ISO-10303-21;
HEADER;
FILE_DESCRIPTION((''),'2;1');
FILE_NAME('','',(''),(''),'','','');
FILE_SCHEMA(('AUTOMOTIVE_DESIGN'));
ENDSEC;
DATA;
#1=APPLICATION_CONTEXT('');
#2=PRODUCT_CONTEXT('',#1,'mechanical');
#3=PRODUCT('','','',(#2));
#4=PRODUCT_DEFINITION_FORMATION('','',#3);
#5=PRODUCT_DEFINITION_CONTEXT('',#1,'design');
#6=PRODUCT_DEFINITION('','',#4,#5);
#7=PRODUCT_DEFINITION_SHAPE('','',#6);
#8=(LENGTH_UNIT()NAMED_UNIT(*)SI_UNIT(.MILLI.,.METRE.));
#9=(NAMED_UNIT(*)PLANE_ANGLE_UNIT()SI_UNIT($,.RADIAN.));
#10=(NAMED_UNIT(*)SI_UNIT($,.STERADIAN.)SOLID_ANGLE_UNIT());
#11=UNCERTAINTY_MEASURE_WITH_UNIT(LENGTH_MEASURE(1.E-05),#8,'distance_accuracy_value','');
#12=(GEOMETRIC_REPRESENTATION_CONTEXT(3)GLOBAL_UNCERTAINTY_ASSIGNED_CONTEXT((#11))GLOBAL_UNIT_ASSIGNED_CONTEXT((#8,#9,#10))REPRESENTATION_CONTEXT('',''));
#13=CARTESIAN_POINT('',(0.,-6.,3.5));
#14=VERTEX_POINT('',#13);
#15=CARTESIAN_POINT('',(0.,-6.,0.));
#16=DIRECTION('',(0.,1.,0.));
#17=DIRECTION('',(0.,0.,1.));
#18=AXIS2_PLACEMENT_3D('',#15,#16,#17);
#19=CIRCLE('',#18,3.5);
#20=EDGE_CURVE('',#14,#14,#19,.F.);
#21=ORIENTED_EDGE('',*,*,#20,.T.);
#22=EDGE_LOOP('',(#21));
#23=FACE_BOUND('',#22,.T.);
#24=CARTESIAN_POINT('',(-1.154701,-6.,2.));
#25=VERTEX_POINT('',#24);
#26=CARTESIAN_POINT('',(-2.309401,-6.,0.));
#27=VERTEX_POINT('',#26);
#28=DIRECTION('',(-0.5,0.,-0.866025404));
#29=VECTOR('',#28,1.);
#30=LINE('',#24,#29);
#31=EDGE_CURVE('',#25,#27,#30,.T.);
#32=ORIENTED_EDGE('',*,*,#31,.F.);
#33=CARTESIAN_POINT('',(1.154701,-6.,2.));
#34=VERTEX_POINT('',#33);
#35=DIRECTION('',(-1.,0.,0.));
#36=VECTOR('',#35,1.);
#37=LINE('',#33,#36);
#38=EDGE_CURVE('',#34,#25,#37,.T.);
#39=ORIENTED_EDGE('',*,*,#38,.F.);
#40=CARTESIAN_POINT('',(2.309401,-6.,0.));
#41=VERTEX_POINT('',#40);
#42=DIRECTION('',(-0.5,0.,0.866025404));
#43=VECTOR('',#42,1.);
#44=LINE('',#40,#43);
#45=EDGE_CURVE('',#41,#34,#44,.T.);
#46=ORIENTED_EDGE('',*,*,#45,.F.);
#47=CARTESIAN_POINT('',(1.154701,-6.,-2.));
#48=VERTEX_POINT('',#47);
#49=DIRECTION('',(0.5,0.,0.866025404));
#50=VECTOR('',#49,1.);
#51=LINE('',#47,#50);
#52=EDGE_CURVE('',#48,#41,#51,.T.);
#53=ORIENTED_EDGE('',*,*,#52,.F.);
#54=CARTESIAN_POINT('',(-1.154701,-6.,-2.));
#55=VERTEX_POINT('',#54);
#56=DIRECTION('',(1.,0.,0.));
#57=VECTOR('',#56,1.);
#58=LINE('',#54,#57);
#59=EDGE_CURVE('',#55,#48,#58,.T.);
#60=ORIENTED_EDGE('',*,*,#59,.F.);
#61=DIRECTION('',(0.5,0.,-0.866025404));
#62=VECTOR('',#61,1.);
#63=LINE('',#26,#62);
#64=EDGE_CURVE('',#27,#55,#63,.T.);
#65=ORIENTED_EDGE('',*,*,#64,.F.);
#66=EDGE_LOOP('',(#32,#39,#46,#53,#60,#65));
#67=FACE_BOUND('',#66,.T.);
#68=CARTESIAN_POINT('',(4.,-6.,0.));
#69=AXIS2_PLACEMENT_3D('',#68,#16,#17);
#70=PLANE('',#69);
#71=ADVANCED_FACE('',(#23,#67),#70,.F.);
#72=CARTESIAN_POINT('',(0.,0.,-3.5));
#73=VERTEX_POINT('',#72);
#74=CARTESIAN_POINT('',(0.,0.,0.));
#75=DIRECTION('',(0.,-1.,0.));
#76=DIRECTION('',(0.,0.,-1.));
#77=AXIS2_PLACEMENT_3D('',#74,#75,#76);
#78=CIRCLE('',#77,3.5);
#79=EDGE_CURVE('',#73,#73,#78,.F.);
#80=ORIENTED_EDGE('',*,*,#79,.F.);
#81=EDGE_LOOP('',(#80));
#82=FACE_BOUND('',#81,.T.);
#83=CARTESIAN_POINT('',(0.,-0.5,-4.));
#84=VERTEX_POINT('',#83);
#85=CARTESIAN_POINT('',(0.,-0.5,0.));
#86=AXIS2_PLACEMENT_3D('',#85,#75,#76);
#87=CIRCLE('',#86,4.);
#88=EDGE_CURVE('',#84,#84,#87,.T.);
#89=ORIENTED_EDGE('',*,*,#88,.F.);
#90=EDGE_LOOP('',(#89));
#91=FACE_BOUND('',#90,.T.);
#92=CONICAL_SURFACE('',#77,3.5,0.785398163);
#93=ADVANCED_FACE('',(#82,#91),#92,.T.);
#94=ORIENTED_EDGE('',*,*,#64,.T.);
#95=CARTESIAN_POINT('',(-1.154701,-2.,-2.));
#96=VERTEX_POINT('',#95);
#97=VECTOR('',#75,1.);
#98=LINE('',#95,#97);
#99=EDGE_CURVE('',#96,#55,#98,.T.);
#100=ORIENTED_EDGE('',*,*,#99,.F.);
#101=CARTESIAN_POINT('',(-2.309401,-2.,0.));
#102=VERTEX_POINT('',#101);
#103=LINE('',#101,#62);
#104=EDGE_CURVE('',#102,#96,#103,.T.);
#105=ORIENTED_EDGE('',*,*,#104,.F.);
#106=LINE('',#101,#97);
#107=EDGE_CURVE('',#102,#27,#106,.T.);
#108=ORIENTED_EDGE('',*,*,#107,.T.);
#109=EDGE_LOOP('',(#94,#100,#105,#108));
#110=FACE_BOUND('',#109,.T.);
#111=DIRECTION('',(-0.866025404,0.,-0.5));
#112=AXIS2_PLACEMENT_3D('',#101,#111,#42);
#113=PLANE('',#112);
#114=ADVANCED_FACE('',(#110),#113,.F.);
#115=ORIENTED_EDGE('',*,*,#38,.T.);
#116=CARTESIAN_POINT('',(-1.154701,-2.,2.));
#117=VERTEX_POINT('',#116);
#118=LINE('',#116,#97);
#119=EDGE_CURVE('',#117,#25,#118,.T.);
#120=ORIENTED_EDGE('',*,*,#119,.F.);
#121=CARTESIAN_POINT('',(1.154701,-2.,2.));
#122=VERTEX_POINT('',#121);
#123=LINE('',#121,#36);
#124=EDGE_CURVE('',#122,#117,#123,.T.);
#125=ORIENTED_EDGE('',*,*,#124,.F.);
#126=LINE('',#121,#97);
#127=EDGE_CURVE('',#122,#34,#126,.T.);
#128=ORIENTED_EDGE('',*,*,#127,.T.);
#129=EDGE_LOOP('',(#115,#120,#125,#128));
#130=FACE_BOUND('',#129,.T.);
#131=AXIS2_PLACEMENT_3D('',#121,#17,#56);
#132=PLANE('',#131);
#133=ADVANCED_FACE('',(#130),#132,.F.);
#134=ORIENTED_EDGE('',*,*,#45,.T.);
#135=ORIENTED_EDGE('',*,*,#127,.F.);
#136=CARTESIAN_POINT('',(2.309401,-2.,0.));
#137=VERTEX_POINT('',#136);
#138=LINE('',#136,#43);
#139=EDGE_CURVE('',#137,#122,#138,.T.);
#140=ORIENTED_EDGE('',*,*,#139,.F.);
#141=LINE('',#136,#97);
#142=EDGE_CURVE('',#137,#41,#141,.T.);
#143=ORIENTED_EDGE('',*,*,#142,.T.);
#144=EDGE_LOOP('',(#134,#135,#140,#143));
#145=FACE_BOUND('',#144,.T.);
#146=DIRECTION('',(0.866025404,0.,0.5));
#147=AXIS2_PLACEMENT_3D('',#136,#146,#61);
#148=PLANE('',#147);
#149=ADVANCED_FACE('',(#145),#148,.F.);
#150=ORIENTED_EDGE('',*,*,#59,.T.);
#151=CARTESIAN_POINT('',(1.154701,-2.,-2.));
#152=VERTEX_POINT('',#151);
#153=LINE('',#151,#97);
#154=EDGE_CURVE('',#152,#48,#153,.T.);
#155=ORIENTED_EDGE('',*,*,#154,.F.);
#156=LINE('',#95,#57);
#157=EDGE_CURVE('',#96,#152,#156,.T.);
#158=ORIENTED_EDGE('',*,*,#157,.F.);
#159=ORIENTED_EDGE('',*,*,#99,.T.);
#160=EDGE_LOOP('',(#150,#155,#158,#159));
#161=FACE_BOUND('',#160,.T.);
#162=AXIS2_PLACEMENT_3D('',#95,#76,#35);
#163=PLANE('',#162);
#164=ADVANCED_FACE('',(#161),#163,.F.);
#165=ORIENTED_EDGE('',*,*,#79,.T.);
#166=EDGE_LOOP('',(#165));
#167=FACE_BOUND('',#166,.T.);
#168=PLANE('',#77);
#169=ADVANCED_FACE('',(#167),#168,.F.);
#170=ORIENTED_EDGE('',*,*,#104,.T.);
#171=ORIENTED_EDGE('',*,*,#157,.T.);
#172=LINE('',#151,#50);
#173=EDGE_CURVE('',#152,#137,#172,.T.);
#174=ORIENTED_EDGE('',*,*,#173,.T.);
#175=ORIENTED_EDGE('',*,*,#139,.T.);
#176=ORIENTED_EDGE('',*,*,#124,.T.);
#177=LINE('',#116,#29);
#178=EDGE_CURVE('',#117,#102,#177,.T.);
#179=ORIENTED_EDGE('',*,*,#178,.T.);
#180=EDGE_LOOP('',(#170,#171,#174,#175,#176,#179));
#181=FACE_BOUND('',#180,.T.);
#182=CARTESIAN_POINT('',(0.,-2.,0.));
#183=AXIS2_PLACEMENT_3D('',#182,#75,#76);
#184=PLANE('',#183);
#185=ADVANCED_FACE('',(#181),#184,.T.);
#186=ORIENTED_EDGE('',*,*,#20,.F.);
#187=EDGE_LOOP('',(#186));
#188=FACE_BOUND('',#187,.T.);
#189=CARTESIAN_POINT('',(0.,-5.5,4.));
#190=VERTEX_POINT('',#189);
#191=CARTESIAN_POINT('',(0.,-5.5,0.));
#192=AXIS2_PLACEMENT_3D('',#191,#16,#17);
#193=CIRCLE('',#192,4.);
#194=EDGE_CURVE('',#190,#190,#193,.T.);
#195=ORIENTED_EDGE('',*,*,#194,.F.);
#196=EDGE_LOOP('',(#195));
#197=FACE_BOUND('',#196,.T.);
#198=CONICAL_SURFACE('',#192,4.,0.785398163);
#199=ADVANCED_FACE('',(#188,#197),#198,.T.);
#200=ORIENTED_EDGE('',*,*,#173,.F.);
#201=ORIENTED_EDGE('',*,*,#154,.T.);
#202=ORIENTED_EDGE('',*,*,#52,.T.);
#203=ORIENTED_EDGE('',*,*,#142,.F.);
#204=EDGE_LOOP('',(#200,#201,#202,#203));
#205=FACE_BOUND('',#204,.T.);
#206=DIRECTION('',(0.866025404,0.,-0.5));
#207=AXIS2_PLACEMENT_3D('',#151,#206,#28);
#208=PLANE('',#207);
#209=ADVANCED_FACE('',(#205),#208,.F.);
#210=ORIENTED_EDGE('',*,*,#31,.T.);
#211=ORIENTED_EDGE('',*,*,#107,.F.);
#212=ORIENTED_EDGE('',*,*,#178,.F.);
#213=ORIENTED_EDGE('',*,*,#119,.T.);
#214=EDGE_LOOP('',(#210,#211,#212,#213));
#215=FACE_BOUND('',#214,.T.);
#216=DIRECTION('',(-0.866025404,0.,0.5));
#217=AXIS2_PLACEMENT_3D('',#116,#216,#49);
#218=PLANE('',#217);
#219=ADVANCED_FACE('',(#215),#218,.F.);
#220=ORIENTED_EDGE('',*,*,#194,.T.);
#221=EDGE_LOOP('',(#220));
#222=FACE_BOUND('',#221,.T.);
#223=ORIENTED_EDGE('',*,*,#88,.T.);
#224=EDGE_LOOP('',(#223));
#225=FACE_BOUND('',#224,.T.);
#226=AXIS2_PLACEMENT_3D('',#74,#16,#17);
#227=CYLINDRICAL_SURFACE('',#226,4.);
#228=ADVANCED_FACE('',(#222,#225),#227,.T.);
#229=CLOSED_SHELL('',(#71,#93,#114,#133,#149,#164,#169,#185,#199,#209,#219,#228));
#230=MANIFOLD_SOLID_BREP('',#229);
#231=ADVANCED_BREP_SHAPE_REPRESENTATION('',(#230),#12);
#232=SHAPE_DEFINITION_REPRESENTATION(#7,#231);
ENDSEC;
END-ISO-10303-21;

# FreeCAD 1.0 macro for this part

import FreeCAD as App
import Part
import Sketcher
Q = App.Units.Quantity


def edges_at(feature, points):
    """Names of the edges that pass closest to the given points."""
    edges = feature.Shape.Edges
    near = lambda p: min(range(len(edges)), key=lambda i: edges[i].distToShape(Part.Vertex(*p))[0])
    return sorted({f"Edge{near(p) + 1}" for p in points})

doc = App.newDocument("Part")
params = doc.addObject("Spreadsheet::Sheet", "Params")
for row, (alias, value) in enumerate([
    ("sketch1_width", "4 mm"),
    ("sketch1_height", "6 mm"),
    ("revolution_angle", "360 deg"),
    ("chamfer_size", "0.5 mm"),
    ("pocket1_length", "4 mm"),
], start=1):
    params.set(f"A{row}", alias)
    params.set(f"B{row}", "=" + value)
    params.setAlias(f"B{row}", alias)

body = doc.addObject("PartDesign::Body", "Body")

sketch1 = doc.addObject("Sketcher::SketchObject", "Sketch")
body.addObject(sketch1)
sketch1.AttachmentSupport = (doc.XY_Plane, [""])
sketch1.MapMode = "FlatFace"
sketch1.addGeometry([
    Part.LineSegment(App.Vector(0, 0, 0), App.Vector(0, -6, 0)),
    Part.LineSegment(App.Vector(0, -6, 0), App.Vector(4, -6, 0)),
    Part.LineSegment(App.Vector(4, -6, 0), App.Vector(4, 0, 0)),
    Part.LineSegment(App.Vector(4, 0, 0), App.Vector(0, 0, 0)),
], False)
sketch1.addConstraint([
    Sketcher.Constraint("Coincident", 0, 2, 1, 1),
    Sketcher.Constraint("Coincident", 1, 2, 2, 1),
    Sketcher.Constraint("Coincident", 2, 2, 3, 1),
    Sketcher.Constraint("Coincident", 3, 2, 0, 1),
    Sketcher.Constraint("Vertical", 0),
    Sketcher.Constraint("Horizontal", 1),
    Sketcher.Constraint("Vertical", 2),
    Sketcher.Constraint("Horizontal", 3),
    Sketcher.Constraint("Coincident", 3, 2, -1, 1),
    Sketcher.Constraint("DistanceX", 1, 1, 1, 2, 4.0),
    Sketcher.Constraint("DistanceY", 0, 2, 0, 1, 6.0),
])
sketch1.setExpression("Constraints[9]", "Params.sketch1_width")
sketch1.setExpression("Constraints[10]", "Params.sketch1_height")
revolution = doc.addObject("PartDesign::Revolution", "Revolution")
body.addObject(revolution)
revolution.Profile = sketch1
revolution.ReferenceAxis = (sketch1, ["V_Axis"])
revolution.setExpression("Angle", "Params.revolution_angle")
doc.recompute()

chamfer = doc.addObject("PartDesign::Chamfer", "Chamfer")
body.addObject(chamfer)
chamfer.Base = (revolution, edges_at(revolution, [(0, -6, -4), (0, 0, -4)]))
chamfer.setExpression("Size", "Params.chamfer_size")

sketch2 = doc.addObject("Sketcher::SketchObject", "Sketch001")
body.addObject(sketch2)
sketch2.AttachmentSupport = (doc.XZ_Plane, [""])
sketch2.MapMode = "FlatFace"
sketch2.AttachmentOffset = App.Placement(App.Vector(0, 0, 6), App.Rotation())
sketch2.addGeometry([
    Part.LineSegment(App.Vector(-1.2, -2, 0), App.Vector(1.2, -2, 0)),
    Part.LineSegment(App.Vector(1.2, -2, 0), App.Vector(2.3, 0, 0)),
    Part.LineSegment(App.Vector(2.3, 0, 0), App.Vector(1.2, 2, 0)),
    Part.LineSegment(App.Vector(1.2, 2, 0), App.Vector(-1.2, 2, 0)),
    Part.LineSegment(App.Vector(-1.2, 2, 0), App.Vector(-2.3, 0, 0)),
    Part.LineSegment(App.Vector(-2.3, 0, 0), App.Vector(-1.2, -2, 0)),
], False)
sketch2.addConstraint([
    Sketcher.Constraint("Coincident", 0, 2, 1, 1),
    Sketcher.Constraint("Coincident", 1, 2, 2, 1),
    Sketcher.Constraint("Coincident", 2, 2, 3, 1),
    Sketcher.Constraint("Coincident", 3, 2, 4, 1),
    Sketcher.Constraint("Coincident", 4, 2, 5, 1),
    Sketcher.Constraint("Coincident", 5, 2, 0, 1),
    Sketcher.Constraint("Horizontal", 0),
    Sketcher.Constraint("Horizontal", 3),
    Sketcher.Constraint("Symmetric", 0, 2, 3, 2, -1, 1),
    Sketcher.Constraint("Symmetric", 1, 2, 4, 2, -1, 1),
    Sketcher.Constraint("PointOnObject", 1, 2, -1),
    Sketcher.Constraint("Parallel", 2, 5),
    Sketcher.Constraint("Vertical", 0, 2, 2, 2),
    Sketcher.Constraint("Angle", 1, Q("60 deg")),
    Sketcher.Constraint("DistanceY", 0, 2, -1, 1, 2.0),
    Sketcher.Constraint("DistanceX", 0, 1, 0, 2, 2.309401),
])
pocket1 = doc.addObject("PartDesign::Pocket", "Pocket")
body.addObject(pocket1)
pocket1.Profile = sketch2
pocket1.setExpression("Length", "Params.pocket1_length")

doc.recompute()
